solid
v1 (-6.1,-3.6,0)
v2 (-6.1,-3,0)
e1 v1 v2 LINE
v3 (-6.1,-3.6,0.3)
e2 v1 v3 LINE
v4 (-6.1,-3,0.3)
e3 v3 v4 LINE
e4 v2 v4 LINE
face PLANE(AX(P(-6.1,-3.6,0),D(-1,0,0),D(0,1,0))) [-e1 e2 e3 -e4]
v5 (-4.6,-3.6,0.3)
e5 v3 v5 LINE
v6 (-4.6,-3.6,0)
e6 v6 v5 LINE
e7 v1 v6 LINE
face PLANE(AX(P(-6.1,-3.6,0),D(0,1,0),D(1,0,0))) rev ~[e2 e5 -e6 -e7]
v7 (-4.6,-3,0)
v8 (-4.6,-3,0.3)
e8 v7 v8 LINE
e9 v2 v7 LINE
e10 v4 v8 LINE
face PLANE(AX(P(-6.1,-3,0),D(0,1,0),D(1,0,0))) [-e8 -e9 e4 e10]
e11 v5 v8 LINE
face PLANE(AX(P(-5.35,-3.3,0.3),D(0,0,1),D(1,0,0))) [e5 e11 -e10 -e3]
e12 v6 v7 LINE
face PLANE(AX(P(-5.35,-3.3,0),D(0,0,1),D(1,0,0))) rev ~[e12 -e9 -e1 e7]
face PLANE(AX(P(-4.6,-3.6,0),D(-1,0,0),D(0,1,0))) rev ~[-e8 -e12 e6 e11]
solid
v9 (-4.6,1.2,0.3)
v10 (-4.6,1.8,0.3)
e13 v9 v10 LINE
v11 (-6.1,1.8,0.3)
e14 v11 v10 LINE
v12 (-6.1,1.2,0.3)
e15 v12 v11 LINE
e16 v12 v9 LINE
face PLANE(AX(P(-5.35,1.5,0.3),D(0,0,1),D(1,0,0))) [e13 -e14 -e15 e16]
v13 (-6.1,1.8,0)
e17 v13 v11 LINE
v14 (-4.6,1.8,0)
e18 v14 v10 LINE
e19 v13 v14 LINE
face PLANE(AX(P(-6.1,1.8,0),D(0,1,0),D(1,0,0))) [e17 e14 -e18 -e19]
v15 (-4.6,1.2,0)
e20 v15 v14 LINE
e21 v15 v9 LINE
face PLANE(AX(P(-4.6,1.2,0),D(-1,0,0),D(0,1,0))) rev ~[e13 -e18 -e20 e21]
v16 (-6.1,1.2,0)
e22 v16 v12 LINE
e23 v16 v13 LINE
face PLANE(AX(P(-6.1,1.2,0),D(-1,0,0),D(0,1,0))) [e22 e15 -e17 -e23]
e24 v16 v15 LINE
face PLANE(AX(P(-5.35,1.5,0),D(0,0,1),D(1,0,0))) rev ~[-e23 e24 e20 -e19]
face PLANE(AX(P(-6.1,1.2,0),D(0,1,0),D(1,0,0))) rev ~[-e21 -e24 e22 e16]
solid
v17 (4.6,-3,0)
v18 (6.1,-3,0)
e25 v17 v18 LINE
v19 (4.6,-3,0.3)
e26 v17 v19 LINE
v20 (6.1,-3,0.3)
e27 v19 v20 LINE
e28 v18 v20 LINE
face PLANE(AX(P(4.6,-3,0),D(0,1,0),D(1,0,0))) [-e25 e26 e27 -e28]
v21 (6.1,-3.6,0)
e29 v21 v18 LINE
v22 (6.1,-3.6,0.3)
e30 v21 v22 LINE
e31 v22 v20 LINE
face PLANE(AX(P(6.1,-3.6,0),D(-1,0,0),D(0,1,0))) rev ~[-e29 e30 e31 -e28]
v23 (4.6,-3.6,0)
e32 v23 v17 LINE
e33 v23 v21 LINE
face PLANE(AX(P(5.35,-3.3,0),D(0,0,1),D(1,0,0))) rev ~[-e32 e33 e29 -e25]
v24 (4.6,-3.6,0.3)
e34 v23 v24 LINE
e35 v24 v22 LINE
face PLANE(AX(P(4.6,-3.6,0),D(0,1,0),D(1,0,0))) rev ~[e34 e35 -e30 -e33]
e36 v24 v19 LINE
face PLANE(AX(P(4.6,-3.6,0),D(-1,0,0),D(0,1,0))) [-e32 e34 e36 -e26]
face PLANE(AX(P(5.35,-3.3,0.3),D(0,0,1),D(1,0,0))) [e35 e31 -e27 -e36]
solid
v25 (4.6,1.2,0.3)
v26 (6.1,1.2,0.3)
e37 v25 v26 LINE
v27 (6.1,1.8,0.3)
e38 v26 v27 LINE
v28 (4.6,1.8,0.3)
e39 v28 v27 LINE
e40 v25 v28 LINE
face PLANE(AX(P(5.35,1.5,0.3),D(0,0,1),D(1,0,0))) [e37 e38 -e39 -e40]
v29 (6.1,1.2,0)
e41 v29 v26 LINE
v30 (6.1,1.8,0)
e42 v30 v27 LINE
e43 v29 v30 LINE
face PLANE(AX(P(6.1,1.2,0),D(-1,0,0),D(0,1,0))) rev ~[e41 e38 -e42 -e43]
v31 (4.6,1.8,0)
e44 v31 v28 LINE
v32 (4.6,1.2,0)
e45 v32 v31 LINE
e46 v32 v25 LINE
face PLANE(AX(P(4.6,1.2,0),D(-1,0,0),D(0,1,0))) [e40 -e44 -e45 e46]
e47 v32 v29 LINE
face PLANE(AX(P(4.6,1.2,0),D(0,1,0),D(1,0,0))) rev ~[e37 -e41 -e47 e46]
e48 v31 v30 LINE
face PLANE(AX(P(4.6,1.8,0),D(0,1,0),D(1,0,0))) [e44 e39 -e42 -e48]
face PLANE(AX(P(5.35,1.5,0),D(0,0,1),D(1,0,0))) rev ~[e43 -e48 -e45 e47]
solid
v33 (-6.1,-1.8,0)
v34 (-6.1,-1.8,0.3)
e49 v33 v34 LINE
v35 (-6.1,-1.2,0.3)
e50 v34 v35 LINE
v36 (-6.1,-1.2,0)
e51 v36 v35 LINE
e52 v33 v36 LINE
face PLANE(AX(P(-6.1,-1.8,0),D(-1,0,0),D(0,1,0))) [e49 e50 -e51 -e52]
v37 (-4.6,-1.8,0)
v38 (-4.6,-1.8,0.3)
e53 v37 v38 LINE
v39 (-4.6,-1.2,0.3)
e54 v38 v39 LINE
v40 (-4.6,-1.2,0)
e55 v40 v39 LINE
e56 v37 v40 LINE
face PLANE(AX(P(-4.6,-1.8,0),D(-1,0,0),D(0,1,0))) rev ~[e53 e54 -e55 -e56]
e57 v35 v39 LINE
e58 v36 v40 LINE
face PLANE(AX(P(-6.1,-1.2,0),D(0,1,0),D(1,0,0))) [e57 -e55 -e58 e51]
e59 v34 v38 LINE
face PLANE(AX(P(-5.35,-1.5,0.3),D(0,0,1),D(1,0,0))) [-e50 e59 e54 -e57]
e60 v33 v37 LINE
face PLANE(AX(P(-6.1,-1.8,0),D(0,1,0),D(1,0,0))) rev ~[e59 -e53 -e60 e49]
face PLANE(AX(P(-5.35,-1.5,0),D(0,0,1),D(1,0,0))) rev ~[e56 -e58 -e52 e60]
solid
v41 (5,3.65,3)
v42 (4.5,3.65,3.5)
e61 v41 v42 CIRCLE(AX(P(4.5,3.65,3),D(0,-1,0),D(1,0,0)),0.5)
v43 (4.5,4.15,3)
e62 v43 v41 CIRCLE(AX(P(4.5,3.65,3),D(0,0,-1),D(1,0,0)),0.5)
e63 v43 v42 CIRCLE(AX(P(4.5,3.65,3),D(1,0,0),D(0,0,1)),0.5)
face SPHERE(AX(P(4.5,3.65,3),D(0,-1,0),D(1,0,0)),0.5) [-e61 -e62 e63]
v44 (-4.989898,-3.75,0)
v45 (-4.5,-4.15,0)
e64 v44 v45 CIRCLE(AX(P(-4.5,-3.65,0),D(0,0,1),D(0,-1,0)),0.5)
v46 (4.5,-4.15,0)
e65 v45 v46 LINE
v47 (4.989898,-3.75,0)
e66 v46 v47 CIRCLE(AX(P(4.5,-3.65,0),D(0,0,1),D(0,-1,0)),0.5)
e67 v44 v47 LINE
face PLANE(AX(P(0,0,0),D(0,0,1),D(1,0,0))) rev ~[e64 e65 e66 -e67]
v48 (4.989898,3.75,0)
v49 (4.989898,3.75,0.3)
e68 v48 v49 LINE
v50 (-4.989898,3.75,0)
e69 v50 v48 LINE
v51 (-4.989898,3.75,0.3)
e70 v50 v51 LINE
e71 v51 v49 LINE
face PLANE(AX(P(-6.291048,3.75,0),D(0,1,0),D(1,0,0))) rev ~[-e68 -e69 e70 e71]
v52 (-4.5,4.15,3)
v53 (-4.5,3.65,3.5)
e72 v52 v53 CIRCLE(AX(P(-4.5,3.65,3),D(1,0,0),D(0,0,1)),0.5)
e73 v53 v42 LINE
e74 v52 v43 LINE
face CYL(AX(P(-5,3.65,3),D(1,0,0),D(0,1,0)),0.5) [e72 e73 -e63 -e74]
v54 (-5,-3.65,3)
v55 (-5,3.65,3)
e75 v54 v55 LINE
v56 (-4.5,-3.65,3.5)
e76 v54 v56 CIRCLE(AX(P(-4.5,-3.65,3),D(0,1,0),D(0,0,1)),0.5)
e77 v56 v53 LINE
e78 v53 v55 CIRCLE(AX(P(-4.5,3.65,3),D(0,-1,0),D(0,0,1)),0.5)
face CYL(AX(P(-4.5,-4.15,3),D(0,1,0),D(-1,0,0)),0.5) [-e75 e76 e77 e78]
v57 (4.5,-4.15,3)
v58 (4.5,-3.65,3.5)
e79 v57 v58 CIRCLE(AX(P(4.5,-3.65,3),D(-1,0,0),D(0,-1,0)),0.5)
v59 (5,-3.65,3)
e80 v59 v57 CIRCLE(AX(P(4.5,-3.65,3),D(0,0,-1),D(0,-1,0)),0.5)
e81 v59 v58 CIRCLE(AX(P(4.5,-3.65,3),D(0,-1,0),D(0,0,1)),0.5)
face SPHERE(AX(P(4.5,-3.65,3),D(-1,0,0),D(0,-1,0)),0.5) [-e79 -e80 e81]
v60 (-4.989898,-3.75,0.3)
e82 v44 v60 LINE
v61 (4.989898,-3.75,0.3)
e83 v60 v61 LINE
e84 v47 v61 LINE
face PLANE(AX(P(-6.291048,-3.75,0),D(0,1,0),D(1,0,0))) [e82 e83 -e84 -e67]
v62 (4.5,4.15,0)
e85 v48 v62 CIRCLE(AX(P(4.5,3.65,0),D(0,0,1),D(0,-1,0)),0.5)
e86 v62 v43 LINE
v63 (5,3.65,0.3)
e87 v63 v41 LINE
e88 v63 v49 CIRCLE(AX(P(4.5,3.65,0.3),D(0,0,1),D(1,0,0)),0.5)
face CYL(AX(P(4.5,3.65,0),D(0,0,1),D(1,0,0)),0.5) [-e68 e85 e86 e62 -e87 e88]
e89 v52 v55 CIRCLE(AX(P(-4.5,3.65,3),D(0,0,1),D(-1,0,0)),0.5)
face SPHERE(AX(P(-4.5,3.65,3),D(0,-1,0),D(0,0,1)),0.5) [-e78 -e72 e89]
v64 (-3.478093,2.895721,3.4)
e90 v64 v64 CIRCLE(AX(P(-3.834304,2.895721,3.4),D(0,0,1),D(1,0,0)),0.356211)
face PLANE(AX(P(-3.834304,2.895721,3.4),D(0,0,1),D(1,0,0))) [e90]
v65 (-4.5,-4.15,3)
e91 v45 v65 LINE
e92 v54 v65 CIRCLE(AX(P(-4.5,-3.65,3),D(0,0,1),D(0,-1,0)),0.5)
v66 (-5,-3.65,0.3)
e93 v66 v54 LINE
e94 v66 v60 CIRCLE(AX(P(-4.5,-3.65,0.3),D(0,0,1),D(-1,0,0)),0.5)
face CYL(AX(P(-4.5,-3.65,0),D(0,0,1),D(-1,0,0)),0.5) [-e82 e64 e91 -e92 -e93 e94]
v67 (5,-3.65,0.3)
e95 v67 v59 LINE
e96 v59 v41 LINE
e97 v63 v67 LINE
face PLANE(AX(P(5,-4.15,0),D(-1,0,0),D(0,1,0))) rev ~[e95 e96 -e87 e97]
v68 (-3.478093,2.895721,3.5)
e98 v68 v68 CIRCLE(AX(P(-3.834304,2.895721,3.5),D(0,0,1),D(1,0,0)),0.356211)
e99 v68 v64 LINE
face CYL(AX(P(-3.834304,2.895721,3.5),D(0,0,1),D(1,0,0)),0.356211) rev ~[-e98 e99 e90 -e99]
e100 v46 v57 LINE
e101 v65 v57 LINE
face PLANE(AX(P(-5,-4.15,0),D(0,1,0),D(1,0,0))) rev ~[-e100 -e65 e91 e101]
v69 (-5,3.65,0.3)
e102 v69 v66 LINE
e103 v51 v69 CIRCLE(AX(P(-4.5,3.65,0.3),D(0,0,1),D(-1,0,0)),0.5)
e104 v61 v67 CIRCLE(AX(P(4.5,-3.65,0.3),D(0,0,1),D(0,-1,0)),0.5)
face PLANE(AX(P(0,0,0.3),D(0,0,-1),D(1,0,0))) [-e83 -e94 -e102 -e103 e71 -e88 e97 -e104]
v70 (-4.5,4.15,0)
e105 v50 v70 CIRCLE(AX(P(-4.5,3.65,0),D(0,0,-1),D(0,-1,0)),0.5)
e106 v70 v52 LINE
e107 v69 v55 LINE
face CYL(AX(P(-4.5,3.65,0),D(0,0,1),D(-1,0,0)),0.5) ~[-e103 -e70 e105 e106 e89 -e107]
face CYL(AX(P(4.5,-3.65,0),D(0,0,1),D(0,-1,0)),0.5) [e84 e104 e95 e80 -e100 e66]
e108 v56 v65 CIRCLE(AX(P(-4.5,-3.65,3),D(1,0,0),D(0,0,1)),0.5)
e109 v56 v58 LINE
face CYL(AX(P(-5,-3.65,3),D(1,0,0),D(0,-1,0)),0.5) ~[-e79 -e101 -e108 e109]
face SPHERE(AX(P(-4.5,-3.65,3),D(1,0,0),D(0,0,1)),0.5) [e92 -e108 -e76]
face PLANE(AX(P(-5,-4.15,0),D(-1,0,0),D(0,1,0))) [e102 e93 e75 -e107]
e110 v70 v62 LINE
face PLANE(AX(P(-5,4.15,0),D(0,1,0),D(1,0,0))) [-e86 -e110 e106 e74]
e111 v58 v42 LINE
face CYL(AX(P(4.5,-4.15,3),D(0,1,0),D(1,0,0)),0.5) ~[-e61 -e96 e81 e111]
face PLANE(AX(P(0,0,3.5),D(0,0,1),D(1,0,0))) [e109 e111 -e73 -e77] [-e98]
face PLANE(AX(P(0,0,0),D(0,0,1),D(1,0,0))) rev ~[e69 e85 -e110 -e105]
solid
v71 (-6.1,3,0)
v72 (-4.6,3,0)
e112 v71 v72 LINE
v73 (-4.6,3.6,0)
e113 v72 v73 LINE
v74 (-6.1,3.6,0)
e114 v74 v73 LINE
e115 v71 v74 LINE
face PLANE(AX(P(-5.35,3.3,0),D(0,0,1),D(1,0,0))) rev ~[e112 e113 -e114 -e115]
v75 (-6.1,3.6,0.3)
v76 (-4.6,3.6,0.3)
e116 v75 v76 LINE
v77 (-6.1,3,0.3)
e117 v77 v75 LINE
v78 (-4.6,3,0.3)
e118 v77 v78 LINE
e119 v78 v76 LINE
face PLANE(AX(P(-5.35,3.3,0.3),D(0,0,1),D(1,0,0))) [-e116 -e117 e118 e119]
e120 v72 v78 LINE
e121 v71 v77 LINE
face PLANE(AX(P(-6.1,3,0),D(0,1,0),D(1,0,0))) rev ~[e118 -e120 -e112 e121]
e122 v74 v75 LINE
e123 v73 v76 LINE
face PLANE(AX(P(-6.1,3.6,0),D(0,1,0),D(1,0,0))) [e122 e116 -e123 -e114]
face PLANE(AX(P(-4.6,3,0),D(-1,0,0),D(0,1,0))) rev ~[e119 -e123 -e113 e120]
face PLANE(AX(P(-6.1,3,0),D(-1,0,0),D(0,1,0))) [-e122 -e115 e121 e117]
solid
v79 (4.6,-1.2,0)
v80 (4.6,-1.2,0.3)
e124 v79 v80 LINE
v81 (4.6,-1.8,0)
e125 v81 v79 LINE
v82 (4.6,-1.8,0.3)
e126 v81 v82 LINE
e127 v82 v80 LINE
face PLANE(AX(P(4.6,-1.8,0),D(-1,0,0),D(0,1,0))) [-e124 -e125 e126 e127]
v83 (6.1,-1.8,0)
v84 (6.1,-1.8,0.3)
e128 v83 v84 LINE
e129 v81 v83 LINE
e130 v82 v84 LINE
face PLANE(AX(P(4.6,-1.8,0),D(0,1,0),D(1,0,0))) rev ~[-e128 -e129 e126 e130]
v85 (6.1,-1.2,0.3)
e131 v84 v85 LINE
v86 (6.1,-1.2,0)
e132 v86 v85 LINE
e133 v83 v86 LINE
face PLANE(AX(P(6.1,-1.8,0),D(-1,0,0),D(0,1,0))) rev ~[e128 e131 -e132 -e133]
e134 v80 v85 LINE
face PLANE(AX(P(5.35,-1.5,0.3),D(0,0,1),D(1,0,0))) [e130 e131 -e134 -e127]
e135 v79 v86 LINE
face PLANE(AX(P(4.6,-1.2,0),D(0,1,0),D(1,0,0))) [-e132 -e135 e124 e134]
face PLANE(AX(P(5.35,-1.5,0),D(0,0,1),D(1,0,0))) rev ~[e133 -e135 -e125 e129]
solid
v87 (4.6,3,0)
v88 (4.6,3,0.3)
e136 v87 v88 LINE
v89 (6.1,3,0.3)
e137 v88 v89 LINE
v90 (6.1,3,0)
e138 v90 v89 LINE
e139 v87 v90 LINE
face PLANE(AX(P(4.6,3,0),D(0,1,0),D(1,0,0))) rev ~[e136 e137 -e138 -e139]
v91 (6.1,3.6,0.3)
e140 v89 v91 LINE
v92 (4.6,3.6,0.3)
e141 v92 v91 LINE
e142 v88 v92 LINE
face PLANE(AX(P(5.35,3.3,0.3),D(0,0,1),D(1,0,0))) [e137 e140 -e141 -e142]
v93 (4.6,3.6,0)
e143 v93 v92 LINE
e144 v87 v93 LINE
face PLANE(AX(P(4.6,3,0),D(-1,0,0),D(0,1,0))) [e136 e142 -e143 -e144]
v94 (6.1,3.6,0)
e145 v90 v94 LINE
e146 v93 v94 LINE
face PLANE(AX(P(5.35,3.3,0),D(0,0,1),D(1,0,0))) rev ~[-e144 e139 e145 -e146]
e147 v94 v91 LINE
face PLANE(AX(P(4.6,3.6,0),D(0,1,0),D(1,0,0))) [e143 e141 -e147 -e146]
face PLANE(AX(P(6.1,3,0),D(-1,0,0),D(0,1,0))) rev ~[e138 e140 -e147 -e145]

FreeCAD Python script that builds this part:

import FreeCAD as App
import Part
import Sketcher

V = App.Vector
Q = App.Units.Quantity


def edges_at(feature, points):
    """Names of the edges that pass closest to the given points."""
    edges = feature.Shape.Edges
    near = lambda p: min(range(len(edges)), key=lambda i: edges[i].distToShape(Part.Vertex(*p))[0])
    return sorted({f"Edge{near(p) + 1}" for p in points})


def add_polygon(sketch, points):
    """Adds a closed chain of lines whose ends are joined by coincident constraints."""
    first, n = sketch.GeometryCount, len(points)
    for a, b in zip(points, points[1:] + points[:1]):
        sketch.addGeometry(Part.LineSegment(App.Vector(*a, 0), App.Vector(*b, 0)), False)
    for i in range(n):
        sketch.addConstraint(Sketcher.Constraint("Coincident", first + i, 2, first + (i + 1) % n, 1))

doc = App.newDocument("Part")
body = doc.addObject("PartDesign::Body", "Body")

# Sketch on XY plane
sketch1 = doc.addObject("Sketcher::SketchObject", "Sketch")
body.addObject(sketch1)
sketch1.AttachmentSupport = (doc.XY_Plane, [""])
sketch1.MapMode = "FlatFace"
add_polygon(sketch1, [(-5, 4), (-5, -4), (5, -4), (5, 4)])  # lines 0-3
sketch1.addConstraint([
    Sketcher.Constraint("Vertical", 0),
    Sketcher.Constraint("Horizontal", 1),
    Sketcher.Constraint("Vertical", 2),
    Sketcher.Constraint("Horizontal", 3),
    Sketcher.Constraint("Symmetric", 0, 2, 2, 2, -1, 1),
    Sketcher.Constraint("DistanceX", 1, 1, 1, 2, Q("10 mm")),
    Sketcher.Constraint("DistanceY", 0, 2, 0, 1, Q("8.3 mm")),
])
pad1 = doc.addObject("PartDesign::Pad", "Pad")
body.addObject(pad1)
pad1.Profile = sketch1
pad1.Length = 3.5
doc.recompute()

fillet = doc.addObject("PartDesign::Fillet", "Fillet")
body.addObject(fillet)
fillet.Base = (pad1, edges_at(pad1, [
    (0, -4.15, 3.5),
    (-5, 0, 3.5),
    (-5, -4.15, 1.75),
    (5, -4.15, 1.75),
    (5, 0, 3.5),
    (5, 4.15, 1.75),
    (0, 4.15, 3.5),
    (-5, 4.15, 1.75),
]))
fillet.Radius = 0.5

# Sketch on XY plane
sketch2 = doc.addObject("Sketcher::SketchObject", "Sketch001")
body.addObject(sketch2)
sketch2.AttachmentSupport = (doc.XY_Plane, [""])
sketch2.MapMode = "FlatFace"
add_polygon(sketch2, [(-6, -4), (-6, 4), (6, 4), (6, -4)])  # lines 0-3
sketch2.addConstraint([
    Sketcher.Constraint("Vertical", 0),
    Sketcher.Constraint("Horizontal", 1),
    Sketcher.Constraint("Vertical", 2),
    Sketcher.Constraint("Horizontal", 3),
    Sketcher.Constraint("Symmetric", 0, 2, 2, 2, -1, 1),
    Sketcher.Constraint("DistanceY", 0, 1, 0, 2, Q("7.5 mm")),
    Sketcher.Constraint("DistanceX", 1, 1, 1, 2, Q("12.582096 mm")),
])
pocket1 = doc.addObject("PartDesign::Pocket", "Pocket")
body.addObject(pocket1)
pocket1.Profile = sketch2
pocket1.Length = 0.3
pocket1.Reversed = True

# Sketch on XY plane
sketch3 = doc.addObject("Sketcher::SketchObject", "Sketch002")
body.addObject(sketch3)
sketch3.AttachmentSupport = (doc.XY_Plane, [""])
sketch3.MapMode = "FlatFace"
sketch3.AttachmentOffset = App.Placement(V(0, 0, 3.5), App.Rotation())
sketch3.addGeometry(Part.Circle(V(-3.83, 2.9, 0), V(0, 0, 1), 0.36), False)
sketch3.addConstraint([
    Sketcher.Constraint("Diameter", 0, Q("0.712422 mm")),
    Sketcher.Constraint("DistanceY", -1, 1, 0, 3, Q("2.895721 mm")),
    Sketcher.Constraint("DistanceX", 0, 3, -1, 1, Q("3.834304 mm")),
])
pocket2 = doc.addObject("PartDesign::Pocket", "Pocket001")
body.addObject(pocket2)
pocket2.Profile = sketch3
pocket2.Length = 0.1
body2 = doc.addObject("PartDesign::Body", "Body001")
body2.AllowCompound = True

# Sketch on XY plane
sketch4 = doc.addObject("Sketcher::SketchObject", "Sketch003")
body2.addObject(sketch4)
sketch4.AttachmentSupport = (doc.getObject("XY_Plane001"), [""])
sketch4.MapMode = "FlatFace"
add_polygon(sketch4, [(-6.1, 3.6), (-6.1, 3), (-4.6, 3), (-4.6, 3.6)])  # lines 0-3
add_polygon(sketch4, [(-6.1, 1.8), (-6.1, 1.2), (-4.6, 1.2), (-4.6, 1.8)])  # lines 4-7
add_polygon(sketch4, [(-6.1, -1.2), (-6.1, -1.8), (-4.6, -1.8), (-4.6, -1.2)])  # lines 8-11
add_polygon(sketch4, [(4.6, 3.6), (4.6, 3), (6.1, 3), (6.1, 3.6)])  # lines 12-15
add_polygon(sketch4, [(4.6, 1.8), (4.6, 1.2), (6.1, 1.2), (6.1, 1.8)])  # lines 16-19
add_polygon(sketch4, [(4.6, -1.2), (4.6, -1.8), (6.1, -1.8), (6.1, -1.2)])  # lines 20-23
add_polygon(sketch4, [(4.6, -3), (4.6, -3.6), (6.1, -3.6), (6.1, -3)])  # lines 24-27
add_polygon(sketch4, [(-6.1, -3), (-6.1, -3.6), (-4.6, -3.6), (-4.6, -3)])  # lines 28-31
sketch4.addConstraint([
    Sketcher.Constraint("Vertical", 0),
    Sketcher.Constraint("Horizontal", 1),
    Sketcher.Constraint("Vertical", 2),
    Sketcher.Constraint("Horizontal", 3),
    Sketcher.Constraint("Vertical", 4),
    Sketcher.Constraint("Horizontal", 5),
    Sketcher.Constraint("Vertical", 6),
    Sketcher.Constraint("Horizontal", 7),
    Sketcher.Constraint("Vertical", 8),
    Sketcher.Constraint("Horizontal", 9),
    Sketcher.Constraint("Vertical", 10),
    Sketcher.Constraint("Horizontal", 11),
    Sketcher.Constraint("Vertical", 12),
    Sketcher.Constraint("Horizontal", 13),
    Sketcher.Constraint("Vertical", 14),
    Sketcher.Constraint("Horizontal", 15),
    Sketcher.Constraint("Vertical", 16),
    Sketcher.Constraint("Horizontal", 17),
    Sketcher.Constraint("Vertical", 18),
    Sketcher.Constraint("Horizontal", 19),
    Sketcher.Constraint("Vertical", 20),
    Sketcher.Constraint("Horizontal", 21),
    Sketcher.Constraint("Vertical", 22),
    Sketcher.Constraint("Horizontal", 23),
    Sketcher.Constraint("Vertical", 24),
    Sketcher.Constraint("Horizontal", 25),
    Sketcher.Constraint("Vertical", 26),
    Sketcher.Constraint("Horizontal", 27),
    Sketcher.Constraint("Vertical", 28),
    Sketcher.Constraint("Horizontal", 29),
    Sketcher.Constraint("Vertical", 30),
    Sketcher.Constraint("Horizontal", 31),
    Sketcher.Constraint("Symmetric", 10, 2, 16, 2, -1, 1),
    Sketcher.Constraint("Symmetric", 8, 2, 18, 2, -1, 1),
    Sketcher.Constraint("Symmetric", 6, 2, 20, 2, -1, 1),
    Sketcher.Constraint("Symmetric", 4, 2, 22, 2, -1, 1),
    Sketcher.Constraint("Symmetric", 2, 2, 24, 2, -1, 1),
    Sketcher.Constraint("Symmetric", 0, 2, 26, 2, -1, 1),
    Sketcher.Constraint("Symmetric", 14, 2, 28, 2, -1, 1),
    Sketcher.Constraint("Symmetric", 12, 2, 30, 2, -1, 1),
    Sketcher.Constraint("Symmetric", 1, 2, 12, 2, -2),
    Sketcher.Constraint("Symmetric", 3, 2, 14, 2, -2),
    Sketcher.Constraint("Symmetric", 5, 2, 16, 2, -2),
    Sketcher.Constraint("Symmetric", 7, 2, 18, 2, -2),
    Sketcher.Constraint("Vertical", 3, 2, 4, 2),
    Sketcher.Constraint("Vertical", 2, 2, 5, 2),
    Sketcher.Constraint("Equal", 2, 4),
    Sketcher.Constraint("DistanceX", 1, 1, 1, 2, Q("1.5 mm")),
    Sketcher.Constraint("DistanceY", 0, 2, 0, 1, Q("0.6 mm")),
    Sketcher.Constraint("DistanceY", -1, 1, 0, 2, Q("3 mm")),
    Sketcher.Constraint("DistanceY", 8, 2, 4, 2, Q("3 mm")),
    Sketcher.Constraint("DistanceX", 0, 2, -1, 1, Q("6.1 mm")),
])
pad2 = doc.addObject("PartDesign::Pad", "Pad001")
body2.addObject(pad2)
pad2.Profile = sketch4
pad2.Length = 0.3

doc.recompute()
